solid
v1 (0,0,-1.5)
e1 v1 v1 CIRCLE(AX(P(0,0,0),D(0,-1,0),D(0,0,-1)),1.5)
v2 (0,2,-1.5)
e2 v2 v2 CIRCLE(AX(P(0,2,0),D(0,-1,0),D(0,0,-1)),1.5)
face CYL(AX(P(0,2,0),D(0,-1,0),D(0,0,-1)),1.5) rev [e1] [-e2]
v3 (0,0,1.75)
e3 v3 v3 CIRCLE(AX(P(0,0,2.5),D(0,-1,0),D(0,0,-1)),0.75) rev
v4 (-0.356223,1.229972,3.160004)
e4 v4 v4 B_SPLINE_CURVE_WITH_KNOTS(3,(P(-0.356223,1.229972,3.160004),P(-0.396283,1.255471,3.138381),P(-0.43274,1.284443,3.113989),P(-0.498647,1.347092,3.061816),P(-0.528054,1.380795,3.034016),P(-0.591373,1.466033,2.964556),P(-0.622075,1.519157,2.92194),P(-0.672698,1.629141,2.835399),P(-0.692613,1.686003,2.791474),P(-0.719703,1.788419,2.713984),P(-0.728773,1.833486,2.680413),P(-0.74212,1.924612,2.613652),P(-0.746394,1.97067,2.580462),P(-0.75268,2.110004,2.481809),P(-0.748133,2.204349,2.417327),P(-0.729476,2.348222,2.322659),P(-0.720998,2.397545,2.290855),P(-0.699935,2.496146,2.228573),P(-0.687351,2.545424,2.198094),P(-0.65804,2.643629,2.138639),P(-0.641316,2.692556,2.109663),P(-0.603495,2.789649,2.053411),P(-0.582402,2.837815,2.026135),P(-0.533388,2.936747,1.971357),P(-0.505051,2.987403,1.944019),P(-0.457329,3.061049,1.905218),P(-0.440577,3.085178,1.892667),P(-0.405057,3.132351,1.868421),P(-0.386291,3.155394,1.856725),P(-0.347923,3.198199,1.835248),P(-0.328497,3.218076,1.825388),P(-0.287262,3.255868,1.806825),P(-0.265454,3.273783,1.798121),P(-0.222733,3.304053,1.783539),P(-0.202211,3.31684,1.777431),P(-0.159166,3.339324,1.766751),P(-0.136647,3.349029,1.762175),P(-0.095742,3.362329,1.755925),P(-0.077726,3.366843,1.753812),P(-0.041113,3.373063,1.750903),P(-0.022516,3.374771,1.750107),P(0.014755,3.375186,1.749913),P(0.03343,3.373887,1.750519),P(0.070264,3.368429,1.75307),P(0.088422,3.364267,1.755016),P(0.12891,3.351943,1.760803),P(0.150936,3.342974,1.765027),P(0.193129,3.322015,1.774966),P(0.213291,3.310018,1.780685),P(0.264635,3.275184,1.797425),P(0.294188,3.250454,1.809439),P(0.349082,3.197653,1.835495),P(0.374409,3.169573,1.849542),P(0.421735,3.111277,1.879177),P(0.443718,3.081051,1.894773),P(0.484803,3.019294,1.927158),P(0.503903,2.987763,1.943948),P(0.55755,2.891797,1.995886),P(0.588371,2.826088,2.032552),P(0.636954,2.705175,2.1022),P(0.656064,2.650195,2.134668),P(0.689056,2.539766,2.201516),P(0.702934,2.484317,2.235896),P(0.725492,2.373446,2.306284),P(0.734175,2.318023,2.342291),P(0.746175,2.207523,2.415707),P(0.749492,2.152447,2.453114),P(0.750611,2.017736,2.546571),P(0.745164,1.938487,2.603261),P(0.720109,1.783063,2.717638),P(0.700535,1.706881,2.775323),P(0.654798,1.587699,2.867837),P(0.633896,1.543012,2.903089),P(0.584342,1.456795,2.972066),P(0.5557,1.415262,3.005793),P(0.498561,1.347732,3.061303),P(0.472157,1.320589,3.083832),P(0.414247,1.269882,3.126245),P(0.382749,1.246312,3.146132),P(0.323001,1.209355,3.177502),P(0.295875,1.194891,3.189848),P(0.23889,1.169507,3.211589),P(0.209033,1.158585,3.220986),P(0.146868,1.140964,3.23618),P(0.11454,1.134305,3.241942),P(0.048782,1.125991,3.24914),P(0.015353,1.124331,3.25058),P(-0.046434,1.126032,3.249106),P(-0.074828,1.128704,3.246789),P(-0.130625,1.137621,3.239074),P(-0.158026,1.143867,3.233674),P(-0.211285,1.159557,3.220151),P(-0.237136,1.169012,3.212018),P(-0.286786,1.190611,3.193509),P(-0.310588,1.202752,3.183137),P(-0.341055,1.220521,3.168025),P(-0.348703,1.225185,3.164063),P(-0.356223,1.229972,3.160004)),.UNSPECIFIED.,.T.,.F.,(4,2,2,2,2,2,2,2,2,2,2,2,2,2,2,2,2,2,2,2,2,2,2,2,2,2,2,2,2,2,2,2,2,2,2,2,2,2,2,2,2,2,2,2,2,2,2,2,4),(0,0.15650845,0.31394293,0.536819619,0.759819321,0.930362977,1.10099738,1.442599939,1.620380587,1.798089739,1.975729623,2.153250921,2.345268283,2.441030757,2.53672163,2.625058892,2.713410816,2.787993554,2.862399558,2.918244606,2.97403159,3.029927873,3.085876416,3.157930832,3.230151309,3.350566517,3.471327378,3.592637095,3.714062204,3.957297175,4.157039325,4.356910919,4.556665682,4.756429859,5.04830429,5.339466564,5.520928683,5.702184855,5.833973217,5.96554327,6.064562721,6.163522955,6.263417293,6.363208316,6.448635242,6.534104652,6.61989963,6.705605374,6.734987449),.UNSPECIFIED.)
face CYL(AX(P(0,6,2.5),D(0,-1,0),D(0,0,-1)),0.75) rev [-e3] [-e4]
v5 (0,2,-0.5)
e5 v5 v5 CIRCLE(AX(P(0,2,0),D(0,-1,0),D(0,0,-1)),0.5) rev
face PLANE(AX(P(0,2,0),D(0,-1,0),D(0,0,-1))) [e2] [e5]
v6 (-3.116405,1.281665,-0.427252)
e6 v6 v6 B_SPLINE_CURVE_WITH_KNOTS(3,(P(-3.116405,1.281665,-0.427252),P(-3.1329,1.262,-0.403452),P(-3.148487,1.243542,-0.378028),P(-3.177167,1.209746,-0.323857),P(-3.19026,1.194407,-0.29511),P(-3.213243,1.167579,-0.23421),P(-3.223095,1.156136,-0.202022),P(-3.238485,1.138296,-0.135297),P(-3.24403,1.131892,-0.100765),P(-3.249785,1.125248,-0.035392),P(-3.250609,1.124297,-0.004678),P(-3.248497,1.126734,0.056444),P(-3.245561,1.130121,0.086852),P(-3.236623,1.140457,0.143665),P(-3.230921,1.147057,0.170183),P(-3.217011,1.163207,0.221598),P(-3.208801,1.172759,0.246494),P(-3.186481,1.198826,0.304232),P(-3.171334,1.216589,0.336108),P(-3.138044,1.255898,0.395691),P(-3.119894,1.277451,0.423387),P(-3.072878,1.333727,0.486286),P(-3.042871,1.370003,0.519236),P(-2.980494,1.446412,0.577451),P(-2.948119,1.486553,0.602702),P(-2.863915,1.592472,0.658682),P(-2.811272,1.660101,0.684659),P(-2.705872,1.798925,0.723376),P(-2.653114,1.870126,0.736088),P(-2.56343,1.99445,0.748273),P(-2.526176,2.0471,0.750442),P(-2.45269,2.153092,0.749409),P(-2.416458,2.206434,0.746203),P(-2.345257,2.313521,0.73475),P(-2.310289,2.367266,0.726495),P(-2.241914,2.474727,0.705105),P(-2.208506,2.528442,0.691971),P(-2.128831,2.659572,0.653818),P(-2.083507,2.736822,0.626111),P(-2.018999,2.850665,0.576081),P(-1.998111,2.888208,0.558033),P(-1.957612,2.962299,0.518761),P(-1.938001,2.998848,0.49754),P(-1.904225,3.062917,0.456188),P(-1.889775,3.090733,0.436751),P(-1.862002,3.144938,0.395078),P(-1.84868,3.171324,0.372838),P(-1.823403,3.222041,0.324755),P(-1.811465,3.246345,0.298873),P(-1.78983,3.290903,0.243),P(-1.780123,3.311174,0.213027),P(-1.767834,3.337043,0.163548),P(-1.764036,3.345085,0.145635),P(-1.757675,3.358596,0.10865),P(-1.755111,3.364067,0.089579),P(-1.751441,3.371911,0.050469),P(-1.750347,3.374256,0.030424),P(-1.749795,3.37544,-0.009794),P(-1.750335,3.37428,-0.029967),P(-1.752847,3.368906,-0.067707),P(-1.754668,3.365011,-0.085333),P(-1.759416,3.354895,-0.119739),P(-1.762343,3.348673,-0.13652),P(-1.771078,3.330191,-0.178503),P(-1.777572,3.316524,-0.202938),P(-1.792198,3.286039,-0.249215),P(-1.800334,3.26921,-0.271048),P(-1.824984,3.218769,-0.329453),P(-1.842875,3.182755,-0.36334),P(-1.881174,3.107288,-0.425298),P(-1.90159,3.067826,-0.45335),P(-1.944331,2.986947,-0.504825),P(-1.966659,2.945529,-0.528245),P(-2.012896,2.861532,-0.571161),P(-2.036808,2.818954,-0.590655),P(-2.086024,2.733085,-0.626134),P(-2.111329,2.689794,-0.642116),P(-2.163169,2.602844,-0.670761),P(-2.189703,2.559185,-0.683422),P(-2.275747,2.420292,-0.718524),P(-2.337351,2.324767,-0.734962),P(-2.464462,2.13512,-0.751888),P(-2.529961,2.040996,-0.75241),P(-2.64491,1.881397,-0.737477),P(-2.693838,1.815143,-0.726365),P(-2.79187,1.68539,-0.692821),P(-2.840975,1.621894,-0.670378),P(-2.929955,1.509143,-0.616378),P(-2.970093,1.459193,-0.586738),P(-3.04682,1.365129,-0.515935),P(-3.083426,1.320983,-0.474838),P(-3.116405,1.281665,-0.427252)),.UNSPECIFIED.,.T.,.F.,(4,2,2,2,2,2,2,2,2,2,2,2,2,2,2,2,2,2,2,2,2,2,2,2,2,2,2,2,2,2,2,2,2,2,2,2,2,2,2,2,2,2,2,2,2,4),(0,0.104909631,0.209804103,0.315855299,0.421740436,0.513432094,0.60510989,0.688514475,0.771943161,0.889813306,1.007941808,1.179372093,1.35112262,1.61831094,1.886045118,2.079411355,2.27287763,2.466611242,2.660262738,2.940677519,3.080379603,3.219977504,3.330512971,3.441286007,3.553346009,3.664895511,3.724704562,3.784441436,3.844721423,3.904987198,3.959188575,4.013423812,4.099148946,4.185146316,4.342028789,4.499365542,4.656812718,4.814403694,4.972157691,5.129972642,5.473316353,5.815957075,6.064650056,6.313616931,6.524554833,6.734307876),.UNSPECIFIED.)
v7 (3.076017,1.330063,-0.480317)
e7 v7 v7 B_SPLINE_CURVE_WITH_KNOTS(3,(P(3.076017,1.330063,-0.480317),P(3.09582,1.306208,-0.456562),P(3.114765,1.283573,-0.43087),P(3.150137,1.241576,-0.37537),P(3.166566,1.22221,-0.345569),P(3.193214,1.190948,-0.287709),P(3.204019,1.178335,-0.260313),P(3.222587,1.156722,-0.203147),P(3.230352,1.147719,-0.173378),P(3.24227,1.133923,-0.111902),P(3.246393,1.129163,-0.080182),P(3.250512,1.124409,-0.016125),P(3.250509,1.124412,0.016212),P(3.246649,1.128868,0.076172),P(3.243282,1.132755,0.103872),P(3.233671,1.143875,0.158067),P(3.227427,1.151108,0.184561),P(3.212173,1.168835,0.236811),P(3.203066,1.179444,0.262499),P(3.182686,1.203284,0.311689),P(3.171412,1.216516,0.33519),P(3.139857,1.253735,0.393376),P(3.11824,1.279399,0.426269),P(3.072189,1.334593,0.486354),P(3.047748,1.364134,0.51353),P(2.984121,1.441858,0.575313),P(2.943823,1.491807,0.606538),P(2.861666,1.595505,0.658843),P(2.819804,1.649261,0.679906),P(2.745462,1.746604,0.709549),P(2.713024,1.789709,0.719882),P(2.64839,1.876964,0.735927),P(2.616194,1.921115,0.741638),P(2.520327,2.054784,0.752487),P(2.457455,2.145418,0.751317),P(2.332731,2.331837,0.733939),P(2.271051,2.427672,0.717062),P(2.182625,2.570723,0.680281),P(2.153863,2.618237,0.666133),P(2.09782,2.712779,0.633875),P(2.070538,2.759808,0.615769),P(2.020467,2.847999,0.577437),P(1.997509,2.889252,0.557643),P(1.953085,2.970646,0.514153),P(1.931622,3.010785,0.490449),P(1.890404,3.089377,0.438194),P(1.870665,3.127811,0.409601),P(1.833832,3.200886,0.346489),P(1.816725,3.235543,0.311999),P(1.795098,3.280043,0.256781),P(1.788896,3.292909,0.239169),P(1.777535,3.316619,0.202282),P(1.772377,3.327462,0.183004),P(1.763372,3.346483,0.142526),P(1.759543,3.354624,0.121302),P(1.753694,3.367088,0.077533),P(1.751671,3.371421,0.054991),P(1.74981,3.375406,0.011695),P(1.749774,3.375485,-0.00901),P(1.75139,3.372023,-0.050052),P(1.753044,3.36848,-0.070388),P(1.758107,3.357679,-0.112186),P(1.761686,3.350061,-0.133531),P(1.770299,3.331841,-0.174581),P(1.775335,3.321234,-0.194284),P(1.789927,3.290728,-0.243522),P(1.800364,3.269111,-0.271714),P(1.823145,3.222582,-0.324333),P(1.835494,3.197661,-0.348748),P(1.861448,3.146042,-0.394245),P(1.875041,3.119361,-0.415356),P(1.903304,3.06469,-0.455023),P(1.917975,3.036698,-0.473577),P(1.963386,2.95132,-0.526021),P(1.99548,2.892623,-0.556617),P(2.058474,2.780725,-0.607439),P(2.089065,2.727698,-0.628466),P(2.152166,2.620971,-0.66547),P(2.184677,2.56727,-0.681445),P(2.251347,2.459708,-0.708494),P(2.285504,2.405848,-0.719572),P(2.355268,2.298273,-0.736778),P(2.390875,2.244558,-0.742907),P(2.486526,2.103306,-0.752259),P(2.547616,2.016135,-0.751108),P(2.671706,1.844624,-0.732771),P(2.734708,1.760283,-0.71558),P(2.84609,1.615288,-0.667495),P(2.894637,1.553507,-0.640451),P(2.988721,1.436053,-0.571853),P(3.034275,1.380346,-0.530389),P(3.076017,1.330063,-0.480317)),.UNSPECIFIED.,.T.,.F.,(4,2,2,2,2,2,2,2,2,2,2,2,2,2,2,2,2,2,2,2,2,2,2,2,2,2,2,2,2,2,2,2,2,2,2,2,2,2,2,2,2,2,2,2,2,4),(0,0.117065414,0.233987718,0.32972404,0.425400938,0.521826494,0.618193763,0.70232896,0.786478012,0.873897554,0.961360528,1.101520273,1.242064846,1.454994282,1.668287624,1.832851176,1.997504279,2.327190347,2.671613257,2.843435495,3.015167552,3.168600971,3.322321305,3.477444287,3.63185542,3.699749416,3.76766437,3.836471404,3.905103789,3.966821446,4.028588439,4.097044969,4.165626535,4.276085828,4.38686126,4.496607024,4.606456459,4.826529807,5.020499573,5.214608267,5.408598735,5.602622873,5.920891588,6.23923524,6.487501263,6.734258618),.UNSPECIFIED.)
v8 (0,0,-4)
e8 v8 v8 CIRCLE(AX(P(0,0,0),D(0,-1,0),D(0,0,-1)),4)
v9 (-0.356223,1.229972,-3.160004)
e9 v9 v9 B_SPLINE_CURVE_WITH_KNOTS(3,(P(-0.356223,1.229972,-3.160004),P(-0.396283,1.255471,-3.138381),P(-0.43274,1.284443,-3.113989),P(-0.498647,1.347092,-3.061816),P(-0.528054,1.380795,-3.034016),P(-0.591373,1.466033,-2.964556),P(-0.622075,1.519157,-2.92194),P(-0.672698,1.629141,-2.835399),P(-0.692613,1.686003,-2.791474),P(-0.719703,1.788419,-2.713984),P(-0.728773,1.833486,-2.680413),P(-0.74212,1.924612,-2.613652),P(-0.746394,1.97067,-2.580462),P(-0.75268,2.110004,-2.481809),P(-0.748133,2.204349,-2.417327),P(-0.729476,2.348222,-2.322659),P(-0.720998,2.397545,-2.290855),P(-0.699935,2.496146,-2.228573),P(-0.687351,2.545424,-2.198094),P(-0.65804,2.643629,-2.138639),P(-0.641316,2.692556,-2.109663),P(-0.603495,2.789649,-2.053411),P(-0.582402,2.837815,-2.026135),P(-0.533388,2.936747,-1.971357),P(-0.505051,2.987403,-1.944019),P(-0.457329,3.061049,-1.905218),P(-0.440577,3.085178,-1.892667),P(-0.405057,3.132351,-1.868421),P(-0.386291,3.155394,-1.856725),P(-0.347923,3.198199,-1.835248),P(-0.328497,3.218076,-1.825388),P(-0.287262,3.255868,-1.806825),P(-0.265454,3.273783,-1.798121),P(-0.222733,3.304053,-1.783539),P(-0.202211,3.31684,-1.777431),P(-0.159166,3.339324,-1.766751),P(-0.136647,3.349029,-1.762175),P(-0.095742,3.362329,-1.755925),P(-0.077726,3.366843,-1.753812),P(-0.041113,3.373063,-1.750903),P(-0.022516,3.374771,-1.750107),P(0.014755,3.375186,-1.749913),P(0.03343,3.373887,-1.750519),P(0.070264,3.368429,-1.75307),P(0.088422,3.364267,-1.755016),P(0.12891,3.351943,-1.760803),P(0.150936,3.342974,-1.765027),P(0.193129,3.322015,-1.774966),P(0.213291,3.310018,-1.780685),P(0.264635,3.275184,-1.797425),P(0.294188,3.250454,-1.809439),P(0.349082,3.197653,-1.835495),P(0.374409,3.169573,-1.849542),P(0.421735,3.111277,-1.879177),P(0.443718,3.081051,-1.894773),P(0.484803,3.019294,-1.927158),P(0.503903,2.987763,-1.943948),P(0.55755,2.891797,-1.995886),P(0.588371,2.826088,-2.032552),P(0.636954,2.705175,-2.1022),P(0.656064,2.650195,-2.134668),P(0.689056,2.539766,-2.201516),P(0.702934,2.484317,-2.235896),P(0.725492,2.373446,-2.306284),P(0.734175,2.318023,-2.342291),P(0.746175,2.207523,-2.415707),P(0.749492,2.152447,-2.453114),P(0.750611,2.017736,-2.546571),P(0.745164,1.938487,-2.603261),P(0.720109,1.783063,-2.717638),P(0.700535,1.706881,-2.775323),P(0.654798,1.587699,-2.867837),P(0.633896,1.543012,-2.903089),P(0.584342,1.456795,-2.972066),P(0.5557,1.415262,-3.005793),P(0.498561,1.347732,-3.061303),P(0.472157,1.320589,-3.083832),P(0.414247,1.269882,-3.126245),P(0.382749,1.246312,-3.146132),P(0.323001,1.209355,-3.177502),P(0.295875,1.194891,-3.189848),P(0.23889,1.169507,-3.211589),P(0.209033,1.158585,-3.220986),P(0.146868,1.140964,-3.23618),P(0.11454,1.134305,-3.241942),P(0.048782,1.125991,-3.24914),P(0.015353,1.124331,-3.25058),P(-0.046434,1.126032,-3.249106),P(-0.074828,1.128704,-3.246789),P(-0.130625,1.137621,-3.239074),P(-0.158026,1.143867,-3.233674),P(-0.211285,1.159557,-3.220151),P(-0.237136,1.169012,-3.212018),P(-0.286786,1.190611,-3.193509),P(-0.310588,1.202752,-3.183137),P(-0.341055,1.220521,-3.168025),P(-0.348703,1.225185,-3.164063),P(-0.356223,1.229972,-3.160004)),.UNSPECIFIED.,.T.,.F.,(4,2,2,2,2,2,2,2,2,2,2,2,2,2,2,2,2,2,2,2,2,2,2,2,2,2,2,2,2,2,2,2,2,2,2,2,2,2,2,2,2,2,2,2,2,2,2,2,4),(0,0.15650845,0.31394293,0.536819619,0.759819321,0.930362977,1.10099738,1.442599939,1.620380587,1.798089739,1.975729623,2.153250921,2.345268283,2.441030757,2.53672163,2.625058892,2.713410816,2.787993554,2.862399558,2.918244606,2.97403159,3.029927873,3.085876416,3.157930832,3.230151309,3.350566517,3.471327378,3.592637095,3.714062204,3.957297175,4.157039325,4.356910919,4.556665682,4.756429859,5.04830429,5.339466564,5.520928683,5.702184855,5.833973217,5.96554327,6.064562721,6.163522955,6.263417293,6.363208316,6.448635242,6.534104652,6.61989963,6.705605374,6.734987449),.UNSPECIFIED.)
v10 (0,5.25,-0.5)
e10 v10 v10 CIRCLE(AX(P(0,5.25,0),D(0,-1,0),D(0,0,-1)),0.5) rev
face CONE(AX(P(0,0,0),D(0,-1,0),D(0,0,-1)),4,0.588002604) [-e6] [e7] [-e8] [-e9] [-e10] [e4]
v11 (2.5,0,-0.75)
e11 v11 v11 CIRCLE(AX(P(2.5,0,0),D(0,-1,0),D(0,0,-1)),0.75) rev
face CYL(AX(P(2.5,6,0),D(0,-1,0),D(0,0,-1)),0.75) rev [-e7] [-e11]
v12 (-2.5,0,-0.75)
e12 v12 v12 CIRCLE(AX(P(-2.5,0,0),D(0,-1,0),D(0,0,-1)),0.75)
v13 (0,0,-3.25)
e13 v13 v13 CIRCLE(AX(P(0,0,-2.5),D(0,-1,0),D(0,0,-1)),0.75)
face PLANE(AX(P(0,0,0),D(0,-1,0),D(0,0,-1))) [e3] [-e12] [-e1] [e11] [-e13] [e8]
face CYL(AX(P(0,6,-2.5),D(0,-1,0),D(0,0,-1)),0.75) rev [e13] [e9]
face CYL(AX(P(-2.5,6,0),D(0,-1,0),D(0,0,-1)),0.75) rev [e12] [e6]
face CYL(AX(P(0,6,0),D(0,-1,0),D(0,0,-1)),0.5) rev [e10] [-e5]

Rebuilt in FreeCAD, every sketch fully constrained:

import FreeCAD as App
import Part
import Sketcher
from FreeCAD import Vector

doc = App.newDocument("Part")
body = doc.addObject("PartDesign::Body", "Body")

sketch1 = body.newObject("Sketcher::SketchObject", "Sketch")
sketch1.AttachmentSupport = (doc.getObject("YZ_Plane"), [""])
sketch1.MapMode = "FlatFace"
sketch1.addGeometry(Part.LineSegment(Vector(0, 0, 0), Vector(0, -4, 0)), False)
sketch1.addGeometry(Part.LineSegment(Vector(0, -4, 0), Vector(6, 0, 0)), False)
sketch1.addGeometry(Part.LineSegment(Vector(6, 0, 0), Vector(0, 0, 0)), False)
sketch1.addConstraint(Sketcher.Constraint("Coincident", 0, 2, 1, 1))
sketch1.addConstraint(Sketcher.Constraint("Coincident", 1, 2, 2, 1))
sketch1.addConstraint(Sketcher.Constraint("Coincident", 2, 2, 0, 1))
sketch1.addConstraint(Sketcher.Constraint("Vertical", 0))
sketch1.addConstraint(Sketcher.Constraint("Horizontal", 2))
sketch1.addConstraint(Sketcher.Constraint("Coincident", 2, 2, -1, 1))
sketch1.addConstraint(Sketcher.Constraint("DistanceX", 2, 2, 2, 1, 6.0))
sketch1.addConstraint(Sketcher.Constraint("DistanceY", 0, 2, 0, 1, 4.0))
revolution = body.newObject("PartDesign::Revolution", "Revolution")
revolution.Profile = sketch1
revolution.ReferenceAxis = (sketch1, ["H_Axis"])
revolution.Angle = 360

sketch2 = body.newObject("Sketcher::SketchObject", "Sketch001")
sketch2.AttachmentSupport = (doc.getObject("XZ_Plane"), [""])
sketch2.MapMode = "FlatFace"
sketch2.addGeometry(Part.Circle(Vector(-2.5, 0, 0), Vector(0, 0, 1), 0.8), False)
sketch2.addGeometry(Part.Circle(Vector(0, -2.5, 0), Vector(0, 0, 1), 0.8), False)
sketch2.addGeometry(Part.Circle(Vector(2.5, 0, 0), Vector(0, 0, 1), 0.8), False)
sketch2.addGeometry(Part.Circle(Vector(0, 0, 0), Vector(0, 0, 1), 0.5), False)
sketch2.addGeometry(Part.Circle(Vector(0, 2.5, 0), Vector(0, 0, 1), 0.8), False)
sketch2.addConstraint(Sketcher.Constraint("Coincident", 3, 3, -1, 1))
sketch2.addConstraint(Sketcher.Constraint("Equal", 0, 1))
sketch2.addConstraint(Sketcher.Constraint("Equal", 1, 2))
sketch2.addConstraint(Sketcher.Constraint("Equal", 2, 4))
sketch2.addConstraint(Sketcher.Constraint("Symmetric", 0, 3, 2, 3, -1, 1))
sketch2.addConstraint(Sketcher.Constraint("Symmetric", 1, 3, 4, 3, -1, 1))
sketch2.addConstraint(Sketcher.Constraint("PointOnObject", 0, 3, -1))
sketch2.addConstraint(Sketcher.Constraint("PointOnObject", 1, 3, -2))
sketch2.addConstraint(Sketcher.Constraint("Diameter", 3, 1.0))
sketch2.addConstraint(Sketcher.Constraint("Diameter", 0, 1.5))
sketch2.addConstraint(Sketcher.Constraint("DistanceX", 0, 3, 2, 3, 5.0))
sketch2.addConstraint(Sketcher.Constraint("DistanceY", 1, 3, 4, 3, 5.0))
pocket1 = body.newObject("PartDesign::Pocket", "Pocket")
pocket1.Profile = sketch2
pocket1.Length = 6

sketch3 = body.newObject("Sketcher::SketchObject", "Sketch002")
sketch3.AttachmentSupport = (doc.getObject("XZ_Plane"), [""])
sketch3.MapMode = "FlatFace"
sketch3.addGeometry(Part.Circle(Vector(0, 0, 0), Vector(0, 0, 1), 1.5), False)
sketch3.addConstraint(Sketcher.Constraint("Coincident", 0, 3, -1, 1))
sketch3.addConstraint(Sketcher.Constraint("Diameter", 0, 3.0))
pocket2 = body.newObject("PartDesign::Pocket", "Pocket001")
pocket2.Profile = sketch3
pocket2.Length = 2

doc.recompute()
